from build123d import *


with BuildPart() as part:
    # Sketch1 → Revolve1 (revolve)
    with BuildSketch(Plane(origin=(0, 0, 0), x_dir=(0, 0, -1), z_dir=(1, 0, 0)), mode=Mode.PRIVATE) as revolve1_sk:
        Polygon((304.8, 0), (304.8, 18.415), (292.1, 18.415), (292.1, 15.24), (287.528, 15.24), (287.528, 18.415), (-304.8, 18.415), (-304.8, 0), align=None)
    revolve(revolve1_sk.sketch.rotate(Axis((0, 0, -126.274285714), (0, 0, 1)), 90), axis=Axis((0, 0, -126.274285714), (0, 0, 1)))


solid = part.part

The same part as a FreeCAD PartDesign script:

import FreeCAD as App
import Part
import Sketcher
from FreeCAD import Vector
Q = App.Units.Quantity


def add_polygon(sketch, points):
    """Adds a closed chain of lines whose ends are joined by coincident constraints."""
    first, n = sketch.GeometryCount, len(points)
    for a, b in zip(points, points[1:] + points[:1]):
        sketch.addGeometry(Part.LineSegment(App.Vector(*a, 0), App.Vector(*b, 0)), False)
    for i in range(n):
        sketch.addConstraint(Sketcher.Constraint("Coincident", first + i, 2, first + (i + 1) % n, 1))

doc = App.newDocument("Part")
body = doc.addObject("PartDesign::Body", "Body")

sketch1 = doc.addObject("Sketcher::SketchObject", "Sketch")
body.addObject(sketch1)
sketch1.AttachmentSupport = (doc.YZ_Plane, [""])
sketch1.MapMode = "FlatFace"
add_polygon(sketch1, [(0, -304.8), (18.4, -304.8), (18.4, -292.1), (15.2, -292.1), (15.2, -287.5), (18.4, -287.5), (18.4, 304.8), (0, 304.8)])
sketch1.addConstraint([
    Sketcher.Constraint("Horizontal", 0),
    Sketcher.Constraint("Vertical", 1),
    Sketcher.Constraint("Horizontal", 2),
    Sketcher.Constraint("Vertical", 3),
    Sketcher.Constraint("Horizontal", 4),
    Sketcher.Constraint("Vertical", 5),
    Sketcher.Constraint("Horizontal", 6),
    Sketcher.Constraint("Vertical", 7),
    Sketcher.Constraint("Symmetric", 6, 2, 7, 2, -1, 1),
    Sketcher.Constraint("Vertical", 1, 2, 4, 2),
    Sketcher.Constraint("DistanceY", 7, 2, 7, 1, Q("24 in")),
    Sketcher.Constraint("DistanceY", 1, 1, 1, 2, Q("0.5 in")),
    Sketcher.Constraint("DistanceY", 3, 1, 3, 2, Q("0.18 in")),
    Sketcher.Constraint("DistanceX", -1, 1, 2, 2, Q("0.6 in")),
    Sketcher.Constraint("DistanceX", 0, 1, 0, 2, Q("0.725 in")),
])
revolution = doc.addObject("PartDesign::Revolution", "Revolution")
body.addObject(revolution)
revolution.Profile = sketch1
revolution.ReferenceAxis = (sketch1, ["V_Axis"])
revolution.Angle = 360

doc.recompute()
